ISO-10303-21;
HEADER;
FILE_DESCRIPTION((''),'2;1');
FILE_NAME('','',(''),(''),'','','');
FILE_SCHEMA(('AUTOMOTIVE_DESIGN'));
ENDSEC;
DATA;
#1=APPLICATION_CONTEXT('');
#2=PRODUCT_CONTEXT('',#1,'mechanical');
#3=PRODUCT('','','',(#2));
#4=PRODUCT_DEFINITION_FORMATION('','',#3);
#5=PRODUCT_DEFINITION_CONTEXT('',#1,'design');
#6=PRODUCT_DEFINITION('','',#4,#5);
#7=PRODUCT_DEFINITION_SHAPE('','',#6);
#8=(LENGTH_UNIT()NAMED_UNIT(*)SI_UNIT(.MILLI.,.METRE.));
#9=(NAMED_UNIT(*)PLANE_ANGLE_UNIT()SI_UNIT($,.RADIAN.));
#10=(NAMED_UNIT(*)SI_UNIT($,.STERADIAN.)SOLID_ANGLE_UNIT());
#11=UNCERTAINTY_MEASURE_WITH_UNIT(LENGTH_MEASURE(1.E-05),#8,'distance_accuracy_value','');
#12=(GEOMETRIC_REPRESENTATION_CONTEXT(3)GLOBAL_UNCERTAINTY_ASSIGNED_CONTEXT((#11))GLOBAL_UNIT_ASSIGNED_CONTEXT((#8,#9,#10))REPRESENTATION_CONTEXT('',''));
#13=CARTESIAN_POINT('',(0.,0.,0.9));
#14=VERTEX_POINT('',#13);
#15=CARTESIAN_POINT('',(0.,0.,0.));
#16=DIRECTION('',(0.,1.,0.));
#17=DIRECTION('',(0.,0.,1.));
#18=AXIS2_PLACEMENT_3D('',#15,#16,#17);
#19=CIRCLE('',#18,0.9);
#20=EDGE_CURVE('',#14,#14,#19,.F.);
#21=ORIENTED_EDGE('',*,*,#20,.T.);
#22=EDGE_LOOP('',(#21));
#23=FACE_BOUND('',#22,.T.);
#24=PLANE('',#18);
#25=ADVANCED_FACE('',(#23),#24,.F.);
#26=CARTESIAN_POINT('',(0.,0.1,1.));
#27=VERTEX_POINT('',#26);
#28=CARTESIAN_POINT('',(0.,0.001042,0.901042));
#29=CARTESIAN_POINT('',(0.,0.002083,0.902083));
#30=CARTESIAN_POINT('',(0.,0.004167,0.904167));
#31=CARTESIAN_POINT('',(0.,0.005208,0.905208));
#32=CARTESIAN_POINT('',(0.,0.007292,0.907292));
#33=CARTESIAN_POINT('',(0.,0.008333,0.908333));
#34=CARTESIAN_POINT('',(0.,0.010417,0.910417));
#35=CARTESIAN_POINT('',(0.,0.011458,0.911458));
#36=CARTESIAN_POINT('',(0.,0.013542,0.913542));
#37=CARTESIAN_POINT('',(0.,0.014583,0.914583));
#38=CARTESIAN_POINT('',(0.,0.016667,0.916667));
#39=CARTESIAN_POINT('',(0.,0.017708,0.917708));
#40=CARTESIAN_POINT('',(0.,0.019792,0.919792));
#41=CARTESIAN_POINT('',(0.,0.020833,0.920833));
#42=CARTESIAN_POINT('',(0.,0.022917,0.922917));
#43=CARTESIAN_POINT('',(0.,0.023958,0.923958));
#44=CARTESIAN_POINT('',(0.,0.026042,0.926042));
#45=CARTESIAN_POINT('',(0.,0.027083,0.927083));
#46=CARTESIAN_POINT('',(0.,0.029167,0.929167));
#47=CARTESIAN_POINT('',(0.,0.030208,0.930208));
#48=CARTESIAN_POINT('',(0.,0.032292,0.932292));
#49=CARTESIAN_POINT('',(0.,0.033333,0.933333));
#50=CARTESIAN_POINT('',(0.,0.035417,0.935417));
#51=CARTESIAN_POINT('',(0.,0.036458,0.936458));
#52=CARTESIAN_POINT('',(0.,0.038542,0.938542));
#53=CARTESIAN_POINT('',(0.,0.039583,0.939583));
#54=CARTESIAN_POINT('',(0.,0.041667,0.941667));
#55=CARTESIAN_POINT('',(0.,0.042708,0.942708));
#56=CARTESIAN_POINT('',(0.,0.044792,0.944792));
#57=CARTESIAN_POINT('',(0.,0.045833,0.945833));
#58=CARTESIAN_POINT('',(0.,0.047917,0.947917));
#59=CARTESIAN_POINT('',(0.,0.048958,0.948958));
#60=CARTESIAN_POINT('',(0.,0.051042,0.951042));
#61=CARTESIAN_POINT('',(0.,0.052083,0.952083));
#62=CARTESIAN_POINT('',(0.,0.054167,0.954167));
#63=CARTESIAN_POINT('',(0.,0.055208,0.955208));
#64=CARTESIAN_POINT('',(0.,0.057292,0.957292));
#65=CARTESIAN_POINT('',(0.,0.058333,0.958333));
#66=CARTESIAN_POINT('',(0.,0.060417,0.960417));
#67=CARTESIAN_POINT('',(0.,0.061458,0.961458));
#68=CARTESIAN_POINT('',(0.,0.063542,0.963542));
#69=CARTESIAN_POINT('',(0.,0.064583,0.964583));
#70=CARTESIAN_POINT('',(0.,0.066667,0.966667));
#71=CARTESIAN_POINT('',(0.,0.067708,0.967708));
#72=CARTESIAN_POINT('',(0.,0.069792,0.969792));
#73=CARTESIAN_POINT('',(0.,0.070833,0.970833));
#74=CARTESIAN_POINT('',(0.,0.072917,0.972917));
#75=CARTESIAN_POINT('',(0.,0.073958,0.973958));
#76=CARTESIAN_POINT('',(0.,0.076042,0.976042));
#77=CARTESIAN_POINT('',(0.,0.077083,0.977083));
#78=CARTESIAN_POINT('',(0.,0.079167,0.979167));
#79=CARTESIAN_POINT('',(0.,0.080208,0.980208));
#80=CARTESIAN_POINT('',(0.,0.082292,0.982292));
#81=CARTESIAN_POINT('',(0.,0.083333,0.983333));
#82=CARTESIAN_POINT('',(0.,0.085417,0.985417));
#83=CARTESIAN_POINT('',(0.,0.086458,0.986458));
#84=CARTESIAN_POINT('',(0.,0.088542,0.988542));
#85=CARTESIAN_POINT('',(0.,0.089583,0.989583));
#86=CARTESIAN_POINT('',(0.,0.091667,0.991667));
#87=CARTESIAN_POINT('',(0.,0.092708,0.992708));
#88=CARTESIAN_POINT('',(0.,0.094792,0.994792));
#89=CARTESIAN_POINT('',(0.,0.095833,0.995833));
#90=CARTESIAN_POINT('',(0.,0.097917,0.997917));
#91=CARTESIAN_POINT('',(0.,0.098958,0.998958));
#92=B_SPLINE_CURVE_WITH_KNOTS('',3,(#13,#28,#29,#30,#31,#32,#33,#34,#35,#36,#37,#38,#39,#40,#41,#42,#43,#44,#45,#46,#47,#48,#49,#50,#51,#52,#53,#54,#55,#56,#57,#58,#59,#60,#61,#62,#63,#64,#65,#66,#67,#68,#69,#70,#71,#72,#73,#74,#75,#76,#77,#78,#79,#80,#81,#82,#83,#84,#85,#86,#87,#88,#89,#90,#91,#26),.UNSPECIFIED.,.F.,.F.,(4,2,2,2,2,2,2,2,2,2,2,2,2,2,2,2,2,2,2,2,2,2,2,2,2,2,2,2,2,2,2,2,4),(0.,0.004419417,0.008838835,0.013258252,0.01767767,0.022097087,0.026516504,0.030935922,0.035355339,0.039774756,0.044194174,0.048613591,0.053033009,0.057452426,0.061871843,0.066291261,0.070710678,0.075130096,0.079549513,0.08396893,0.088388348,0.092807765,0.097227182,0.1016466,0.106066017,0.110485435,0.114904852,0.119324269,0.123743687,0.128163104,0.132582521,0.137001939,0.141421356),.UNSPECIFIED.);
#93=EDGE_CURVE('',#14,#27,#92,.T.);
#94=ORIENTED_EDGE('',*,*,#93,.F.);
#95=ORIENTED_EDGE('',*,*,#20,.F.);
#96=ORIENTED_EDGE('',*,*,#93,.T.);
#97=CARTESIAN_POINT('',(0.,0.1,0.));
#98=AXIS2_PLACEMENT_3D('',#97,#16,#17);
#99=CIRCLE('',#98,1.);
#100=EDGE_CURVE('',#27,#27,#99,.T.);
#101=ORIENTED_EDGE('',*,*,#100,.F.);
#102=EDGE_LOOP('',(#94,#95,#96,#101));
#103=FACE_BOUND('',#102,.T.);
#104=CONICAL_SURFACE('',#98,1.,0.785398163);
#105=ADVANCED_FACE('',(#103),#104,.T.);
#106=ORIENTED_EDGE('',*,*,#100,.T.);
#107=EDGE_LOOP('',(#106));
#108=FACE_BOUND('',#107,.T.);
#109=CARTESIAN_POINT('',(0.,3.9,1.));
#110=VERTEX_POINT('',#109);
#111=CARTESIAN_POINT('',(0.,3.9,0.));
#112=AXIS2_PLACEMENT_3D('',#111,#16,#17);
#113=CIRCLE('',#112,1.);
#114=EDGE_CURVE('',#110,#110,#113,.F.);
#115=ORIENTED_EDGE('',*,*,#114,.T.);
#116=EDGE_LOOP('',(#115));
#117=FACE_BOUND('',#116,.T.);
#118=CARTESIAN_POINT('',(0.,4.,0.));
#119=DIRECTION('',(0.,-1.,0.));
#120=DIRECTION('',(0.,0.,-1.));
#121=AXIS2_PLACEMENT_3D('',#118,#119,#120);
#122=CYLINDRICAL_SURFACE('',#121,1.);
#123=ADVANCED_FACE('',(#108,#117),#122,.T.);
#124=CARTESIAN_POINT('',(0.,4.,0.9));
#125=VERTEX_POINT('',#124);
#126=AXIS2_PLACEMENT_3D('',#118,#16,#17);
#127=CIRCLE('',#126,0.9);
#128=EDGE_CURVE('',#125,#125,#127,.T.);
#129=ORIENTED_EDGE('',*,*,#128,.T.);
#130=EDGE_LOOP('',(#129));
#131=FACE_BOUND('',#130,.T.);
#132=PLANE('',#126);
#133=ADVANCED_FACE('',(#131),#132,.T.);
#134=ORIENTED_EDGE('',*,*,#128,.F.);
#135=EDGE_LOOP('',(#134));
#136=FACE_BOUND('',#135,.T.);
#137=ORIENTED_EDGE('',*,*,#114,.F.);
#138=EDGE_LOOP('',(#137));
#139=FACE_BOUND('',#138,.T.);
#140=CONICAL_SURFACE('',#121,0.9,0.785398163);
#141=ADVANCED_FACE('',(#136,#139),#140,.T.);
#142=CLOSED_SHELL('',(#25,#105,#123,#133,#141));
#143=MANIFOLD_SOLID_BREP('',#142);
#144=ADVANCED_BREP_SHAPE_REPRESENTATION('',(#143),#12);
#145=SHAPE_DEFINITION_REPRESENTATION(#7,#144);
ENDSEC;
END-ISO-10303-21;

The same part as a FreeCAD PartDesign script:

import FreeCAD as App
import Part
import Sketcher
from FreeCAD import Vector


def edges_at(feature, points):
    """Names of the edges that pass closest to the given points."""
    edges = feature.Shape.Edges
    near = lambda p: min(range(len(edges)), key=lambda i: edges[i].distToShape(Part.Vertex(*p))[0])
    return sorted({f"Edge{near(p) + 1}" for p in points})

doc = App.newDocument("Part")
body = doc.addObject("PartDesign::Body", "Body")

sketch1 = body.newObject("Sketcher::SketchObject", "Sketch")
sketch1.AttachmentSupport = (doc.getObject("XZ_Plane"), [""])
sketch1.MapMode = "FlatFace"
sketch1.addGeometry(Part.Circle(Vector(0, 0, 0), Vector(0, 0, 1), 1), False)
sketch1.addConstraint([
    Sketcher.Constraint("Coincident", 0, 3, -1, 1),
    Sketcher.Constraint("Diameter", 0, 2.0),
])
pad1 = body.newObject("PartDesign::Pad", "Pad")
pad1.Profile = sketch1
pad1.Length = 4
pad1.Reversed = True
doc.recompute()

chamfer = body.newObject("PartDesign::Chamfer", "Chamfer")
chamfer.Base = (pad1, edges_at(pad1, [(0, 0, -1), (0, 4, -1)]))
chamfer.Size = 0.1

doc.recompute()
